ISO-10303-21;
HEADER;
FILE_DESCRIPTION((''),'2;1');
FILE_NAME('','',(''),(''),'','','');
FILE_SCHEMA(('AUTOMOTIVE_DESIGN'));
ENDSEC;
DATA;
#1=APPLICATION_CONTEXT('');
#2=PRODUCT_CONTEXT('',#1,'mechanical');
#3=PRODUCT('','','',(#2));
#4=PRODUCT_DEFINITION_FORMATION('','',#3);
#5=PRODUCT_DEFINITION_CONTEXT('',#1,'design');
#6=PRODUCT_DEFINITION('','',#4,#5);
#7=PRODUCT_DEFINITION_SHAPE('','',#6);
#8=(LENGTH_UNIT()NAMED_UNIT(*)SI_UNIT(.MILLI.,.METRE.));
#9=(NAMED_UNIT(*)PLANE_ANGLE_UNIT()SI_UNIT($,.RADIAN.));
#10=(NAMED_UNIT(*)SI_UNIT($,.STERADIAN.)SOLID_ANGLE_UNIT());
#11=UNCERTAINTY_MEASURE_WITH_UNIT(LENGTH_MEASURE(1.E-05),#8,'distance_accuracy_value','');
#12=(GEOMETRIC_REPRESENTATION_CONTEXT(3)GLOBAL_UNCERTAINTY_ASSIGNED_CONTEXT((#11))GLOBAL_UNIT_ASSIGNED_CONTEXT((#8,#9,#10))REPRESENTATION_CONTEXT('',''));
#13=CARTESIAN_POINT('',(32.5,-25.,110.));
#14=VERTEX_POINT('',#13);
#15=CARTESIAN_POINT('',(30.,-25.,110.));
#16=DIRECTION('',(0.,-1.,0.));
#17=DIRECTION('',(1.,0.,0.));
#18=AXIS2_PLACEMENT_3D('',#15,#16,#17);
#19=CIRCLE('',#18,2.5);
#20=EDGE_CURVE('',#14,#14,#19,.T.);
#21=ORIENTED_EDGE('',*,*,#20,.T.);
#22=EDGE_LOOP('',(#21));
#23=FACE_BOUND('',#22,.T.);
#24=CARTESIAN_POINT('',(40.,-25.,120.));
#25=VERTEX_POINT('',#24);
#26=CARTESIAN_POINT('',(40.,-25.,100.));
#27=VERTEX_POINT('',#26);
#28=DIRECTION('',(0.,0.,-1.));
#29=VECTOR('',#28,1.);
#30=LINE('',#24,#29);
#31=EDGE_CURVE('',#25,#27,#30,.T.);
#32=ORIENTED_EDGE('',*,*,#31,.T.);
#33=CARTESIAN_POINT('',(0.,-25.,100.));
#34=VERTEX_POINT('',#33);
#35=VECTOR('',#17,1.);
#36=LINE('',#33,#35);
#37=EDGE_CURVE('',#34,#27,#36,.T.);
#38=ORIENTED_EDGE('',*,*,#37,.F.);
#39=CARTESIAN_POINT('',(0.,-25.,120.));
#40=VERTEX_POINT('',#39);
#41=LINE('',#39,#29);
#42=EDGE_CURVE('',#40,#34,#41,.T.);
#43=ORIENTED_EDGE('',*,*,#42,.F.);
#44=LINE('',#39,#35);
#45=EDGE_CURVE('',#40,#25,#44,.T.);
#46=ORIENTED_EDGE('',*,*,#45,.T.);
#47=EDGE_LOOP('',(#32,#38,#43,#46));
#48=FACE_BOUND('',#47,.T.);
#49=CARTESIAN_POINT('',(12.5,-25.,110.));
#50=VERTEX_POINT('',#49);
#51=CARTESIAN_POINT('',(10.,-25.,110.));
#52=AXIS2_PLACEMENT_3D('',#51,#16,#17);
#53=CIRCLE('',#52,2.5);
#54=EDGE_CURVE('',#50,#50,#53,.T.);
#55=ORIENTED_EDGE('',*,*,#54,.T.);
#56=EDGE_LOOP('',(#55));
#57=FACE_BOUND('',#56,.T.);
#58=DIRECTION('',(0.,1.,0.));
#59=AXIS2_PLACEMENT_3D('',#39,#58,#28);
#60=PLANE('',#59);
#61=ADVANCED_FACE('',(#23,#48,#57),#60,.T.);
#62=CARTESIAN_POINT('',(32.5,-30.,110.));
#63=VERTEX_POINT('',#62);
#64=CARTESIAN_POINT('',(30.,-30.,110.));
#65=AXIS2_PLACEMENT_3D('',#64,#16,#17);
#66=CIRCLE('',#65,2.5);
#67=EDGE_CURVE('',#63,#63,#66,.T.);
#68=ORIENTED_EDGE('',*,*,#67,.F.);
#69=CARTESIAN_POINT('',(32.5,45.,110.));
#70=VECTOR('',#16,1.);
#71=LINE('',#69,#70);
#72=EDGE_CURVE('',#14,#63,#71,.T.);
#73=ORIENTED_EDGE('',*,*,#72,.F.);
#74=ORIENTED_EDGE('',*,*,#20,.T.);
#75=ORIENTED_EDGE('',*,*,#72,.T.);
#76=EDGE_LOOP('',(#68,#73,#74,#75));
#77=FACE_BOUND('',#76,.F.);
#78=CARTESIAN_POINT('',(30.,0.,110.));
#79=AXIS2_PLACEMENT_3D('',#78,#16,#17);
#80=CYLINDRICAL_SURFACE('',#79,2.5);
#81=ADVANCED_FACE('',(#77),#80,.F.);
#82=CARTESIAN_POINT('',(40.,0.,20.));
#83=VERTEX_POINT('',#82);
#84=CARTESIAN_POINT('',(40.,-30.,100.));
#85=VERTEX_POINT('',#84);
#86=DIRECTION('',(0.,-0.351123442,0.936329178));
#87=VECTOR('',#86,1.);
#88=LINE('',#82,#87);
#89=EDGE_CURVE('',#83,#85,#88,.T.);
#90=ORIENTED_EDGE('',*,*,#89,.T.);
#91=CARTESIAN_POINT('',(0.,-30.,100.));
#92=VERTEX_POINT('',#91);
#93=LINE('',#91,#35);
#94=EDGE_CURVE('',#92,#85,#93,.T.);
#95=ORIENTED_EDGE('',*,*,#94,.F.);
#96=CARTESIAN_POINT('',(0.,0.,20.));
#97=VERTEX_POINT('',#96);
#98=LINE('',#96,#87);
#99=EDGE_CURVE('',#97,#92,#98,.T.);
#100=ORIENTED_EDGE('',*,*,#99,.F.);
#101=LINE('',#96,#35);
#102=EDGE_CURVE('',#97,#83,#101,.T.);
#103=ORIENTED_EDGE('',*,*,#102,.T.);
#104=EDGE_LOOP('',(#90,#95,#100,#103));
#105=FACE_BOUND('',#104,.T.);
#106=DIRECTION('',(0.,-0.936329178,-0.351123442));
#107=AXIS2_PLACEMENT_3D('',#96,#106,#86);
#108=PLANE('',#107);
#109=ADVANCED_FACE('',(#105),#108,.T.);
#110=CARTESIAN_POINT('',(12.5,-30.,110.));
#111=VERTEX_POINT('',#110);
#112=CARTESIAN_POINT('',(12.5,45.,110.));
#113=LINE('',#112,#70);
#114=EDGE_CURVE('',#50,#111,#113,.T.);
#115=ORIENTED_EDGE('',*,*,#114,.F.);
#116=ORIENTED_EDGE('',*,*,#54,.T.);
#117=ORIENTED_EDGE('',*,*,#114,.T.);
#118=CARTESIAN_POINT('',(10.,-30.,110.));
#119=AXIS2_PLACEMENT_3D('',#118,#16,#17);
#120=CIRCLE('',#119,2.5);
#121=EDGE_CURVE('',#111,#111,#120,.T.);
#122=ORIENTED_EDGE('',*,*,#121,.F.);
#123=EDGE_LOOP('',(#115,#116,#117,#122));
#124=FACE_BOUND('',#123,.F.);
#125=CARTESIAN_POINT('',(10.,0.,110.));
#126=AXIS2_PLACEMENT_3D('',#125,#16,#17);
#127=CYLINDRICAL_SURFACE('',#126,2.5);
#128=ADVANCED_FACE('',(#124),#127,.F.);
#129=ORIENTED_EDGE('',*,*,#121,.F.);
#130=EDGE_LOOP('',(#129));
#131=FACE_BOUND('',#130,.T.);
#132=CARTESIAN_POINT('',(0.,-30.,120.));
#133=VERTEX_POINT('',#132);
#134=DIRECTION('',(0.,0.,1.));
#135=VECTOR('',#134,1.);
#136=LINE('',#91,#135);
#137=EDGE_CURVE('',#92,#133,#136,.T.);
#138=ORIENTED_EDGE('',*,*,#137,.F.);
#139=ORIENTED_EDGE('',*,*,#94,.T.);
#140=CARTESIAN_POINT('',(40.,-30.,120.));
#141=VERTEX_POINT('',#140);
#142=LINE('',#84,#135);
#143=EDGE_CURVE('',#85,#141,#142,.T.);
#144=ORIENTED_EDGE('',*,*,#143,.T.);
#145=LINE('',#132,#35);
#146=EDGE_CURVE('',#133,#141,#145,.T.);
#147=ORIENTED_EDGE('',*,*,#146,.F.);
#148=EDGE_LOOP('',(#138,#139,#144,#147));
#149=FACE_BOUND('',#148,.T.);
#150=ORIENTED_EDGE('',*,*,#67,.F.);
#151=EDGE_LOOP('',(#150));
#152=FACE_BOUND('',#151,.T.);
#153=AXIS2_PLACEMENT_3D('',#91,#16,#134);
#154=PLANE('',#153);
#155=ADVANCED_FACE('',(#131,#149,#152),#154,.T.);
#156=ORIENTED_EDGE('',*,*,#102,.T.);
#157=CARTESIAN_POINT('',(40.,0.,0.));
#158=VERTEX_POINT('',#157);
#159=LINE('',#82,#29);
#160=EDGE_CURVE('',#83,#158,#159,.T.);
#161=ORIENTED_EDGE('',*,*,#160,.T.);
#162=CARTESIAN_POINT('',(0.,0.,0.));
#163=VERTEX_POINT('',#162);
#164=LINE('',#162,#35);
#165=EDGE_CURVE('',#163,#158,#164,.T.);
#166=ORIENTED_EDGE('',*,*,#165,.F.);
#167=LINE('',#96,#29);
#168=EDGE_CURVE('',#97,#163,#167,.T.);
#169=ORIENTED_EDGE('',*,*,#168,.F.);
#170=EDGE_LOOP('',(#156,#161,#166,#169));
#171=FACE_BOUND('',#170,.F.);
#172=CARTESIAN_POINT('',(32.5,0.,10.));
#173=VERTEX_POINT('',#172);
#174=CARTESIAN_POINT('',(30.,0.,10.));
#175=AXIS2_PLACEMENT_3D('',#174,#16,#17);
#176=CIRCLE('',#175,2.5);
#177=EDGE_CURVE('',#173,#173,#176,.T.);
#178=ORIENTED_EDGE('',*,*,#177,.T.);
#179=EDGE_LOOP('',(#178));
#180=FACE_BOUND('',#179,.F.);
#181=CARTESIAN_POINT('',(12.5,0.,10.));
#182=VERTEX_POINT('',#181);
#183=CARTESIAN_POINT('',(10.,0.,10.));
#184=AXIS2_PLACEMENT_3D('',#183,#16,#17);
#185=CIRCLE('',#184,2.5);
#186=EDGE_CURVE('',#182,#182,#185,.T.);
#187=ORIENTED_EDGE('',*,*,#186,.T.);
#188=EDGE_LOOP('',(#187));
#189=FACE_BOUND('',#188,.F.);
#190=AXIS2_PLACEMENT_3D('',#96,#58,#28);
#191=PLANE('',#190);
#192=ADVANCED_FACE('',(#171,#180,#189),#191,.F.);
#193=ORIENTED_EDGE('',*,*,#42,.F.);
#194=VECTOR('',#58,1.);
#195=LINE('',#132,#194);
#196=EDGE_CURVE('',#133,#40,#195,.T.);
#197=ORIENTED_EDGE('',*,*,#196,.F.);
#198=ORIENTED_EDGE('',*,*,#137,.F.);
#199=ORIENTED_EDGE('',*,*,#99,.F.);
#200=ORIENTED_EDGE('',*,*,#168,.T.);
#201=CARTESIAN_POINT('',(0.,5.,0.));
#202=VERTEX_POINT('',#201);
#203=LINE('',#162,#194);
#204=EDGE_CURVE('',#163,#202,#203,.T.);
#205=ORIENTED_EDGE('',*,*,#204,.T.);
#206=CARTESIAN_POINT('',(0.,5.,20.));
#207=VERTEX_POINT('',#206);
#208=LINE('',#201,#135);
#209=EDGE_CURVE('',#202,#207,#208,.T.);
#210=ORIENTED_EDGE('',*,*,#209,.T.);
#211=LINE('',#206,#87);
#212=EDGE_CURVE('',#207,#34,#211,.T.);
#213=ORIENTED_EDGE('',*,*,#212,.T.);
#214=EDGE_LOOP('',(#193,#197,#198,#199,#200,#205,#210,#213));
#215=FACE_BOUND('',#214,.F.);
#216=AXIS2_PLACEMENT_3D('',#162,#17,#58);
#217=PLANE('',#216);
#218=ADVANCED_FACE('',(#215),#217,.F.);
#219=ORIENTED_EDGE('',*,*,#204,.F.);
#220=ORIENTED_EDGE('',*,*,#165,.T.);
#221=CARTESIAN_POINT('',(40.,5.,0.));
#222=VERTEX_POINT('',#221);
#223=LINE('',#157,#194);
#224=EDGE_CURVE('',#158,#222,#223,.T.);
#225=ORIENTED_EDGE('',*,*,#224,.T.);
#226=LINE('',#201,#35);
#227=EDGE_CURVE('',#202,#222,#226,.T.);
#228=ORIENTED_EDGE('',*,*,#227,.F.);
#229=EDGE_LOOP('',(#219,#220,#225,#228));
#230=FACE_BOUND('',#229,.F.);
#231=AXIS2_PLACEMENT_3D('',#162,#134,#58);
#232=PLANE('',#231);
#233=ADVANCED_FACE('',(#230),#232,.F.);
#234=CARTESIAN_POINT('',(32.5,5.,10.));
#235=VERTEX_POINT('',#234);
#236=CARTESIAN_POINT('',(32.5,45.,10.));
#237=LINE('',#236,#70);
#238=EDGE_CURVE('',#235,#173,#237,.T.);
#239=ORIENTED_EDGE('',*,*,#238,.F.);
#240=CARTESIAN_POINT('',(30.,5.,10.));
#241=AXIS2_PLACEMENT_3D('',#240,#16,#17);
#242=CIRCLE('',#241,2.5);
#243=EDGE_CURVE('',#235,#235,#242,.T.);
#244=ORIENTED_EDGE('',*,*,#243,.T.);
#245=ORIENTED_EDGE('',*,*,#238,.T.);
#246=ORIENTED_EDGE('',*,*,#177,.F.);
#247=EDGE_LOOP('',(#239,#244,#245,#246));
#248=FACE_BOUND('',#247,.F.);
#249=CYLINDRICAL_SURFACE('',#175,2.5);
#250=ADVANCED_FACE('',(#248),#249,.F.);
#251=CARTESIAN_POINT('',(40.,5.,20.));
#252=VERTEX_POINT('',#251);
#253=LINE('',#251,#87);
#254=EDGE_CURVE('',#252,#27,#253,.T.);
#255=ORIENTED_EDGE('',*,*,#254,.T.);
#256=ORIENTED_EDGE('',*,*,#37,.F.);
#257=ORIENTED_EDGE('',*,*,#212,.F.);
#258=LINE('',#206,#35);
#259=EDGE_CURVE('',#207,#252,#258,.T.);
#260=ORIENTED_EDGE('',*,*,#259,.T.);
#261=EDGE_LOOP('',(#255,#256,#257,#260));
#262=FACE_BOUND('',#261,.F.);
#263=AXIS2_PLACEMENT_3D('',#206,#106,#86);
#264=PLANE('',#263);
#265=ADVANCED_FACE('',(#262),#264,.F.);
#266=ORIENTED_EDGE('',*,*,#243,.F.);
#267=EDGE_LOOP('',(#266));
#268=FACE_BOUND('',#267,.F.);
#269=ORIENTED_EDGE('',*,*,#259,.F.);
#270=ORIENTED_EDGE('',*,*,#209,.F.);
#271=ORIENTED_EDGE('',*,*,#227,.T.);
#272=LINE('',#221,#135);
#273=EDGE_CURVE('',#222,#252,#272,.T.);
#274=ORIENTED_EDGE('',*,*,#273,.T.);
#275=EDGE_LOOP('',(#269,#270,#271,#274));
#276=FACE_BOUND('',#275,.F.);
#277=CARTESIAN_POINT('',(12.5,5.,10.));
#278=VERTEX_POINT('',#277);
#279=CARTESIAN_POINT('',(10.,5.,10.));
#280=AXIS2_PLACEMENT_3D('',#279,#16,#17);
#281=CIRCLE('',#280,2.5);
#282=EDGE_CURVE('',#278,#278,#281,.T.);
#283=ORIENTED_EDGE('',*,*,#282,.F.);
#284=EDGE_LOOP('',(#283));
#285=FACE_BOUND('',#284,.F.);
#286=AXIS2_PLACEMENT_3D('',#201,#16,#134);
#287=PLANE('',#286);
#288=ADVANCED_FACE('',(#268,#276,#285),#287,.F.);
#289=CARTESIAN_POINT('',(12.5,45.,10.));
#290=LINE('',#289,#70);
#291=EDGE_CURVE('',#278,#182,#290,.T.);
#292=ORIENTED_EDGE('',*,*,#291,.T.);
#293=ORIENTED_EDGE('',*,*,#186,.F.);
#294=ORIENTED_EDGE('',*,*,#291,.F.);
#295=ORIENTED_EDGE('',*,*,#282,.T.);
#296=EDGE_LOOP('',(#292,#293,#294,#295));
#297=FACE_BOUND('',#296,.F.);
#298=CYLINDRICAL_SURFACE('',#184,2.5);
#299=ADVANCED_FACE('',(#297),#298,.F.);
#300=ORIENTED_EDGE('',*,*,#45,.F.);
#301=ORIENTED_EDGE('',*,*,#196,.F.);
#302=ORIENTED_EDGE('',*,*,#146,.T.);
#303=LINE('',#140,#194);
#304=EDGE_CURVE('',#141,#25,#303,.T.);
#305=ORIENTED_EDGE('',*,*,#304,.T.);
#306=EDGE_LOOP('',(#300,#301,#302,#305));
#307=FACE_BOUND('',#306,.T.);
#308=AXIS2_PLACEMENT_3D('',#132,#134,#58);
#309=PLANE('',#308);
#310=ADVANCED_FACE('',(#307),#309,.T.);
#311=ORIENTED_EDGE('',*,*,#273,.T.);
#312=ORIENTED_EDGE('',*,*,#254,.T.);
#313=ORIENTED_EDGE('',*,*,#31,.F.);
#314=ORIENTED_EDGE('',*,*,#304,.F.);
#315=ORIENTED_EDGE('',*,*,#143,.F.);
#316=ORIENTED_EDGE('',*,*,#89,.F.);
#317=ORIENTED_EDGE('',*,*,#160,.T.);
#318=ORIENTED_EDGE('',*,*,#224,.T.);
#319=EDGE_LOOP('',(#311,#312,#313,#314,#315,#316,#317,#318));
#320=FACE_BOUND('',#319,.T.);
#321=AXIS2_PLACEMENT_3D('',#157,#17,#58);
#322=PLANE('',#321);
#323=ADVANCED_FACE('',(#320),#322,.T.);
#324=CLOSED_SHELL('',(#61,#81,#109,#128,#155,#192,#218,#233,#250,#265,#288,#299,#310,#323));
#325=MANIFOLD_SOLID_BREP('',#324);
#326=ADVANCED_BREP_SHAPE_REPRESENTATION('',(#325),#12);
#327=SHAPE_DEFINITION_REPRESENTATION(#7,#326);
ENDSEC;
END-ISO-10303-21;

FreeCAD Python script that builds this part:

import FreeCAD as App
import Part
import Sketcher
from FreeCAD import Vector
Q = App.Units.Quantity


def add_polygon(sketch, points):
    """Adds a closed chain of lines whose ends are joined by coincident constraints."""
    first, n = sketch.GeometryCount, len(points)
    for a, b in zip(points, points[1:] + points[:1]):
        sketch.addGeometry(Part.LineSegment(App.Vector(*a, 0), App.Vector(*b, 0)), False)
    for i in range(n):
        sketch.addConstraint(Sketcher.Constraint("Coincident", first + i, 2, first + (i + 1) % n, 1))

doc = App.newDocument("Part")
body = doc.addObject("PartDesign::Body", "Body")

# Sketch on YZ plane
sketch1 = body.newObject("Sketcher::SketchObject", "Sketch")
sketch1.AttachmentSupport = (doc.getObject("YZ_Plane"), [""])
sketch1.MapMode = "FlatFace"
add_polygon(sketch1, [(0, 20), (0, 0), (5, 0), (5, 20), (-25, 100), (-25, 120), (-30, 120), (-30, 100)])  # lines 0-7
sketch1.addConstraint([
    Sketcher.Constraint("Vertical", 0),
    Sketcher.Constraint("Horizontal", 1),
    Sketcher.Constraint("Vertical", 2),
    Sketcher.Constraint("Vertical", 4),
    Sketcher.Constraint("Horizontal", 5),
    Sketcher.Constraint("Vertical", 6),
    Sketcher.Constraint("Coincident", 0, 2, -1, 1),
    Sketcher.Constraint("Parallel", 3, 7),
    Sketcher.Constraint("Horizontal", 3, 2, 6, 2),
    Sketcher.Constraint("Horizontal", 2, 2, 7, 2),
    Sketcher.Constraint("Equal", 2, 4),
    Sketcher.Constraint("DistanceX", 1, 1, 1, 2, Q("5 mm")),
    Sketcher.Constraint("DistanceY", 0, 2, 0, 1, Q("20 mm")),
    Sketcher.Constraint("DistanceY", -1, 1, 4, 2, Q("120 mm")),
    Sketcher.Constraint("DistanceX", 5, 2, 2, 2, Q("35 mm")),
])
pad1 = body.newObject("PartDesign::Pad", "Pad")
pad1.Profile = sketch1
pad1.Length = 40

# Sketch on XZ plane
sketch2 = body.newObject("Sketcher::SketchObject", "Sketch001")
sketch2.AttachmentSupport = (doc.getObject("XZ_Plane"), [""])
sketch2.MapMode = "FlatFace"
sketch2.addGeometry([
    Part.Circle(Vector(30, 10, 0), Vector(0, 0, 1), 2.5),
    Part.Circle(Vector(10, 10, 0), Vector(0, 0, 1), 2.5),
    Part.Circle(Vector(30, 110, 0), Vector(0, 0, 1), 2.5),
    Part.Circle(Vector(10, 110, 0), Vector(0, 0, 1), 2.5),
], False)
sketch2.addConstraint([
    Sketcher.Constraint("Equal", 0, 1),
    Sketcher.Constraint("Equal", 1, 2),
    Sketcher.Constraint("Equal", 2, 3),
    Sketcher.Constraint("Horizontal", 0, 3, 1, 3),
    Sketcher.Constraint("Horizontal", 2, 3, 3, 3),
    Sketcher.Constraint("Vertical", 0, 3, 2, 3),
    Sketcher.Constraint("Vertical", 1, 3, 3, 3),
    Sketcher.Constraint("Diameter", 0, Q("5 mm")),
    Sketcher.Constraint("DistanceY", -1, 1, 0, 3, Q("10 mm")),
    Sketcher.Constraint("DistanceX", -1, 1, 1, 3, Q("10 mm")),
    Sketcher.Constraint("DistanceX", -1, 1, 0, 3, Q("30 mm")),
    Sketcher.Constraint("DistanceY", -1, 1, 2, 3, Q("110 mm")),
])
pocket1 = body.newObject("PartDesign::Pocket", "Pocket")
pocket1.Profile = sketch2
pocket1.Length = 90
pocket1.Midplane = True

doc.recompute()
